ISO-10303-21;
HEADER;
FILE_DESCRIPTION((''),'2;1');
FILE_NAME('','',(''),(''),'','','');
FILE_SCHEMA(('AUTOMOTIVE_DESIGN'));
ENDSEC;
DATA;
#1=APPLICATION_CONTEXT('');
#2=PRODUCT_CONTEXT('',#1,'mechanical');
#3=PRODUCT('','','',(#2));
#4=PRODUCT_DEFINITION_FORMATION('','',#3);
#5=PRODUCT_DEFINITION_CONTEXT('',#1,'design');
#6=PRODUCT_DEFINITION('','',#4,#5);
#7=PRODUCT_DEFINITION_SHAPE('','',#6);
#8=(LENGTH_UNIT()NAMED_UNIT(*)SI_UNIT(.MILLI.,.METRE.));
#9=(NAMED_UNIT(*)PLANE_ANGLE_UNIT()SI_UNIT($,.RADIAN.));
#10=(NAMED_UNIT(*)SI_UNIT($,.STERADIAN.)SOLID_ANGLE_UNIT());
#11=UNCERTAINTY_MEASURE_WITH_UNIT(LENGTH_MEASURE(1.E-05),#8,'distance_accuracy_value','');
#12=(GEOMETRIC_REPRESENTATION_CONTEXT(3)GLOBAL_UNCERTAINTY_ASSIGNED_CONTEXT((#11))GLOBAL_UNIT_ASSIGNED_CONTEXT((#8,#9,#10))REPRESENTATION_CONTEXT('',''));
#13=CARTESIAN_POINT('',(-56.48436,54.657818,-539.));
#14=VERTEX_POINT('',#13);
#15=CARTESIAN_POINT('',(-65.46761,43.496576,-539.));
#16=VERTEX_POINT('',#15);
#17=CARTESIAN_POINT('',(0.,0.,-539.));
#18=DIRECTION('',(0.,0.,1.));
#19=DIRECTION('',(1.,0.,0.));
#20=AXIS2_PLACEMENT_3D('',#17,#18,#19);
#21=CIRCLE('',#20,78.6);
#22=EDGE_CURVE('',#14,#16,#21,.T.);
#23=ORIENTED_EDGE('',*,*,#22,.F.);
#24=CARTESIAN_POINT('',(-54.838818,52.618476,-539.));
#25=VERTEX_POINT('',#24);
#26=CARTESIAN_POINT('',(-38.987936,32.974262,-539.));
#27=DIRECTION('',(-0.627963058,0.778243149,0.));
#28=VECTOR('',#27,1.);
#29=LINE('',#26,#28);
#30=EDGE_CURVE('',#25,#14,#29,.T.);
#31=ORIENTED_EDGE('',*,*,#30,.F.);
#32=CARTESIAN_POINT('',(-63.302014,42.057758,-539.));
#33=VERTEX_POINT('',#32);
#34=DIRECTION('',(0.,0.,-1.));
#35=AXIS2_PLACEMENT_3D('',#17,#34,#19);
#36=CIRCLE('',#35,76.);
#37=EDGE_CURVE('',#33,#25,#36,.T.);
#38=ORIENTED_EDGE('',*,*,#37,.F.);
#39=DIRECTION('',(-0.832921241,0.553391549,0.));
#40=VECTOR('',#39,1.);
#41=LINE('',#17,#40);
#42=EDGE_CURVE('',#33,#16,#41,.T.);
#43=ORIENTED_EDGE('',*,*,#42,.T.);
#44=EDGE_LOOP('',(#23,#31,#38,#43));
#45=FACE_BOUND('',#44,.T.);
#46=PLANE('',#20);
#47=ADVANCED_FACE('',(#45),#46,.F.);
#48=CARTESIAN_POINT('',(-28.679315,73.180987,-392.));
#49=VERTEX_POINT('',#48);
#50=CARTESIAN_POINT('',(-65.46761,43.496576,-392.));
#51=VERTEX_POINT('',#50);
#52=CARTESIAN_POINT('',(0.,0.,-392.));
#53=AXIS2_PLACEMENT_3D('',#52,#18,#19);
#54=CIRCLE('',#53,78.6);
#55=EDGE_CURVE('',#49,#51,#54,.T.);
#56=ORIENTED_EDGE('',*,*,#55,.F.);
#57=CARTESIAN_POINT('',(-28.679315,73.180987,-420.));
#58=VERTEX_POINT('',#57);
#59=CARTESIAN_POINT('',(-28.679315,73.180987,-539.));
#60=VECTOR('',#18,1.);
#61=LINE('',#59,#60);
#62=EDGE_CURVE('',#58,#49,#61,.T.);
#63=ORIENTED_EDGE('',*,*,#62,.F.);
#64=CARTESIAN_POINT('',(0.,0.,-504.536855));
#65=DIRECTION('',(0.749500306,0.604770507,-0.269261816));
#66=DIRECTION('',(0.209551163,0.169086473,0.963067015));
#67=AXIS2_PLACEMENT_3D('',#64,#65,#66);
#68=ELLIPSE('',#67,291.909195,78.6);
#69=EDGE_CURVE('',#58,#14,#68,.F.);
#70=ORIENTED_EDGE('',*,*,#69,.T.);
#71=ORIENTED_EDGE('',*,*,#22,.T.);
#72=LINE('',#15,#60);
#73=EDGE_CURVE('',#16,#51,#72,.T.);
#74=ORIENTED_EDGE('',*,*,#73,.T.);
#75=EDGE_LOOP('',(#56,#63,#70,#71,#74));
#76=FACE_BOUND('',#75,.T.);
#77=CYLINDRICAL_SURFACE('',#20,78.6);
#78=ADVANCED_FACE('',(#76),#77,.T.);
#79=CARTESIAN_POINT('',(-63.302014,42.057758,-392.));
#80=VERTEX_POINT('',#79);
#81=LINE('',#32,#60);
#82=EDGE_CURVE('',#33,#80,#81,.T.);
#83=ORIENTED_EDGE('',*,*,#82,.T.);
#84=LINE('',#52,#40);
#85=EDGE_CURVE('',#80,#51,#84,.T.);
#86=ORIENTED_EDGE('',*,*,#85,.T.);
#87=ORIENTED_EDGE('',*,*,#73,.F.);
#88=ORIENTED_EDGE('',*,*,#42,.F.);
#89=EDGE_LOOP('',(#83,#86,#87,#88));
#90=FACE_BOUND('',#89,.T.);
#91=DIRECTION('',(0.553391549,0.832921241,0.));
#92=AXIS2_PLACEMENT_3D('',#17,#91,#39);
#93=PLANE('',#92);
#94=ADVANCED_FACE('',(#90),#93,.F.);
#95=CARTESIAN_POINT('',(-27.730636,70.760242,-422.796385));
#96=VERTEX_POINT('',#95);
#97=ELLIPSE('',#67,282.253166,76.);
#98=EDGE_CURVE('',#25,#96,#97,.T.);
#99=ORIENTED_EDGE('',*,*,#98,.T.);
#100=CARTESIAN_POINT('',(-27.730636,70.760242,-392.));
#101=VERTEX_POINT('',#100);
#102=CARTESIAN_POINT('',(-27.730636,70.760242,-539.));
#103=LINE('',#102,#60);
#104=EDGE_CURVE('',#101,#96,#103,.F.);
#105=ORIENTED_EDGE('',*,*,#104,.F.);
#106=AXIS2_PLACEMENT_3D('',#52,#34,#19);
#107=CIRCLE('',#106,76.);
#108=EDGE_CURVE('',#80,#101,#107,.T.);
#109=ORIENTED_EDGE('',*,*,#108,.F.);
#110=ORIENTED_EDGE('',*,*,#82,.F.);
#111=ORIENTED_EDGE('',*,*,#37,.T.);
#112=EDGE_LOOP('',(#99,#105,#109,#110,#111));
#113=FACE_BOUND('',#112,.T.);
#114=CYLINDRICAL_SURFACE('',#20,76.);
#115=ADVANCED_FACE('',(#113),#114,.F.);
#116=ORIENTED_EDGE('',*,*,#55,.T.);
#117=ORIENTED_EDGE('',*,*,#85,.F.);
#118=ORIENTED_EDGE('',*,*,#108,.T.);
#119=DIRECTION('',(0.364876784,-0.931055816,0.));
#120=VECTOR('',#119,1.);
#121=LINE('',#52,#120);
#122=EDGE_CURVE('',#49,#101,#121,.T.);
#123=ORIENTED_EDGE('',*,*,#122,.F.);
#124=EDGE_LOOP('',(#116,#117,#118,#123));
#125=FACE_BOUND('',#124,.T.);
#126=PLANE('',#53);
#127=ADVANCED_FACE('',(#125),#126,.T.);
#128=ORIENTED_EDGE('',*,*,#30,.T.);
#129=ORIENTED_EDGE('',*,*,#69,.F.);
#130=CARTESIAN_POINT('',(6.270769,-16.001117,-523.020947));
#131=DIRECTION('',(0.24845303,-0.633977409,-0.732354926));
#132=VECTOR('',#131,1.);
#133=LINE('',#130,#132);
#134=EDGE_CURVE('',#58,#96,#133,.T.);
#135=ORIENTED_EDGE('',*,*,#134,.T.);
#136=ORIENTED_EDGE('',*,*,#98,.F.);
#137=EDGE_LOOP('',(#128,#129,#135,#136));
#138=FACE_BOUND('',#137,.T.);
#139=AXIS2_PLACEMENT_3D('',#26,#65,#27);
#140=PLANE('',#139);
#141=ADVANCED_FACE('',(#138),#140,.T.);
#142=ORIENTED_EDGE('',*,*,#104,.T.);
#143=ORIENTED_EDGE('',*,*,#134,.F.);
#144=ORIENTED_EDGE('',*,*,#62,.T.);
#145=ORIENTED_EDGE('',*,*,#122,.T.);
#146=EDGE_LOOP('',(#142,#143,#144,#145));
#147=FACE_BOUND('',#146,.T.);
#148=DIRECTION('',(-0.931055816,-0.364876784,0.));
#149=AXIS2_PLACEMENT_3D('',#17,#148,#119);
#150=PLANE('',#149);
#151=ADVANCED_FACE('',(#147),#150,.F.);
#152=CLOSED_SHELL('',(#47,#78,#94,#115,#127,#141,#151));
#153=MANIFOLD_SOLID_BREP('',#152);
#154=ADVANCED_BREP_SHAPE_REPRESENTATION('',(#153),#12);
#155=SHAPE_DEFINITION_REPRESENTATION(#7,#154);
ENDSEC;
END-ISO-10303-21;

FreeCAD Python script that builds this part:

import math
import FreeCAD as App
import Part
import Sketcher
Q = App.Units.Quantity


def add_polygon(sketch, points):
    """Adds a closed chain of lines whose ends are joined by coincident constraints."""
    first, n = sketch.GeometryCount, len(points)
    for a, b in zip(points, points[1:] + points[:1]):
        sketch.addGeometry(Part.LineSegment(App.Vector(*a, 0), App.Vector(*b, 0)), False)
    for i in range(n):
        sketch.addConstraint(Sketcher.Constraint("Coincident", first + i, 2, first + (i + 1) % n, 1))

doc = App.newDocument("Part")
body = doc.addObject("PartDesign::Body", "Body")

# Sketch on XY plane
sketch1 = doc.addObject("Sketcher::SketchObject", "Sketch")
body.addObject(sketch1)
sketch1.AttachmentSupport = (doc.XY_Plane, [""])
sketch1.MapMode = "FlatFace"
sketch1.AttachmentOffset = App.Placement(App.Vector(0, 0, -392), App.Rotation())
sketch1.addGeometry([
    Part.LineSegment(App.Vector(0, 76, 0), App.Vector(0, 78.6, 0)),
    Part.ArcOfCircle(Part.Circle(App.Vector(0, 0, 0), App.Vector(0, 0, 1), 78.6), math.radians(90), math.radians(270)),
    Part.LineSegment(App.Vector(0, -78.6, 0), App.Vector(0, -76, 0)),
    Part.ArcOfCircle(Part.Circle(App.Vector(0, 0, 0), App.Vector(0, 0, 1), 76), math.radians(90), math.radians(270)),
], False)
sketch1.addConstraint([
    Sketcher.Constraint("Coincident", 0, 2, 1, 1),
    Sketcher.Constraint("Coincident", 1, 2, 2, 1),
    Sketcher.Constraint("Coincident", 2, 2, 3, 2),
    Sketcher.Constraint("Coincident", 3, 1, 0, 1),
    Sketcher.Constraint("Vertical", 0),
    Sketcher.Constraint("Vertical", 2),
    Sketcher.Constraint("Coincident", 1, 3, -1, 1),
    Sketcher.Constraint("Coincident", 3, 3, -1, 1),
    Sketcher.Constraint("PointOnObject", 0, 2, -2),
    Sketcher.Constraint("PointOnObject", 1, 2, -2),
    Sketcher.Constraint("Radius", 3, 76.0),
    Sketcher.Constraint("Radius", 1, 78.6),
])
pad1 = doc.addObject("PartDesign::Pad", "Pad")
body.addObject(pad1)
pad1.Profile = sketch1
pad1.Length = 147
pad1.Reversed = True

# Sketch on XY plane
sketch2 = doc.addObject("Sketcher::SketchObject", "Sketch001")
body.addObject(sketch2)
sketch2.AttachmentSupport = (doc.XY_Plane, [""])
sketch2.MapMode = "FlatFace"
sketch2.AttachmentOffset = App.Placement(App.Vector(0, 0, -392), App.Rotation())
sketch2.addGeometry([
    Part.LineSegment(App.Vector(-28.679315, 73.180987, 0), App.Vector(0, 0, 0)),
    Part.LineSegment(App.Vector(0, 0, 0), App.Vector(-65.46761, 43.496576, 0)),
    Part.ArcOfCircle(Part.Circle(App.Vector(0, 0, 0), App.Vector(0, 0, 1), 78.6), math.radians(146.4), math.radians(471.4)),
], False)
sketch2.addConstraint([
    Sketcher.Constraint("Coincident", 0, 2, 1, 1),
    Sketcher.Constraint("Coincident", 1, 2, 2, 1),
    Sketcher.Constraint("Coincident", 2, 2, 0, 1),
    Sketcher.Constraint("Coincident", 2, 3, -1, 1),
    Sketcher.Constraint("Coincident", 0, 2, -1, 1),
    Sketcher.Constraint("Radius", 2, 78.6),
    Sketcher.Constraint("Angle", 0, Q("-68.6 deg")),
    Sketcher.Constraint("Angle", 1, Q("146.4 deg")),
])
pocket1 = doc.addObject("PartDesign::Pocket", "Pocket")
body.addObject(pocket1)
pocket1.Profile = sketch2
pocket1.Type = "ThroughAll"

# Sketch on an angled plane
sketch3 = doc.addObject("Sketcher::SketchObject", "Sketch002")
body.addObject(sketch3)
sketch3.Placement = App.Placement(App.Vector(-45.516325, 56.409, 0), App.Rotation(App.Vector(0.778243149, 0.627963058, 0), App.Vector(0, 0, -1.000000001), App.Vector(-0.627963058, 0.778243149, 0), "ZXY"))
add_polygon(sketch3, [(-41.031, 392.000001), (-41.031, 375.508001), (40.866, 375.508001), (40.866, 555.492001), (-41.031, 555.492001), (-41.031, 546.989744), (-9.635476, 539.000001), (23.635476, 420.000001), (23.635476, 392.000001)])  # lines 0-8
sketch3.addConstraint([
    Sketcher.Constraint("Vertical", 0),
    Sketcher.Constraint("Horizontal", 1),
    Sketcher.Constraint("Vertical", 2),
    Sketcher.Constraint("Horizontal", 3),
    Sketcher.Constraint("Vertical", 4),
    Sketcher.Constraint("Vertical", 7),
    Sketcher.Constraint("Horizontal", 8),
    Sketcher.Constraint("Vertical", 0, 2, 3, 2),
    Sketcher.Constraint("DistanceY", 7, 2, 7, 1, 28.0),
    Sketcher.Constraint("DistanceY", -1, 1, 5, 2, 539.000001),
    Sketcher.Constraint("DistanceY", -1, 1, 6, 2, 420.000001),
    Sketcher.Constraint("DistanceX", 1, 1, 1, 2, 81.897),
    Sketcher.Constraint("DistanceY", 0, 2, 0, 1, 16.492),
    Sketcher.Constraint("DistanceY", 2, 1, 2, 2, 179.984),
    Sketcher.Constraint("DistanceX", 0, 2, -1, 1, 41.031),
    Sketcher.Constraint("Distance", 6, 123.563572),
    Sketcher.Constraint("DistanceX", 8, 2, 8, 1, 64.666476),
    Sketcher.Constraint("DistanceY", 4, 2, 4, 1, 8.502257),
])
pocket2 = doc.addObject("PartDesign::Pocket", "Pocket001")
body.addObject(pocket2)
pocket2.Profile = sketch3
pocket2.Type = "ThroughAll"
pocket2.Midplane = True

doc.recompute()
